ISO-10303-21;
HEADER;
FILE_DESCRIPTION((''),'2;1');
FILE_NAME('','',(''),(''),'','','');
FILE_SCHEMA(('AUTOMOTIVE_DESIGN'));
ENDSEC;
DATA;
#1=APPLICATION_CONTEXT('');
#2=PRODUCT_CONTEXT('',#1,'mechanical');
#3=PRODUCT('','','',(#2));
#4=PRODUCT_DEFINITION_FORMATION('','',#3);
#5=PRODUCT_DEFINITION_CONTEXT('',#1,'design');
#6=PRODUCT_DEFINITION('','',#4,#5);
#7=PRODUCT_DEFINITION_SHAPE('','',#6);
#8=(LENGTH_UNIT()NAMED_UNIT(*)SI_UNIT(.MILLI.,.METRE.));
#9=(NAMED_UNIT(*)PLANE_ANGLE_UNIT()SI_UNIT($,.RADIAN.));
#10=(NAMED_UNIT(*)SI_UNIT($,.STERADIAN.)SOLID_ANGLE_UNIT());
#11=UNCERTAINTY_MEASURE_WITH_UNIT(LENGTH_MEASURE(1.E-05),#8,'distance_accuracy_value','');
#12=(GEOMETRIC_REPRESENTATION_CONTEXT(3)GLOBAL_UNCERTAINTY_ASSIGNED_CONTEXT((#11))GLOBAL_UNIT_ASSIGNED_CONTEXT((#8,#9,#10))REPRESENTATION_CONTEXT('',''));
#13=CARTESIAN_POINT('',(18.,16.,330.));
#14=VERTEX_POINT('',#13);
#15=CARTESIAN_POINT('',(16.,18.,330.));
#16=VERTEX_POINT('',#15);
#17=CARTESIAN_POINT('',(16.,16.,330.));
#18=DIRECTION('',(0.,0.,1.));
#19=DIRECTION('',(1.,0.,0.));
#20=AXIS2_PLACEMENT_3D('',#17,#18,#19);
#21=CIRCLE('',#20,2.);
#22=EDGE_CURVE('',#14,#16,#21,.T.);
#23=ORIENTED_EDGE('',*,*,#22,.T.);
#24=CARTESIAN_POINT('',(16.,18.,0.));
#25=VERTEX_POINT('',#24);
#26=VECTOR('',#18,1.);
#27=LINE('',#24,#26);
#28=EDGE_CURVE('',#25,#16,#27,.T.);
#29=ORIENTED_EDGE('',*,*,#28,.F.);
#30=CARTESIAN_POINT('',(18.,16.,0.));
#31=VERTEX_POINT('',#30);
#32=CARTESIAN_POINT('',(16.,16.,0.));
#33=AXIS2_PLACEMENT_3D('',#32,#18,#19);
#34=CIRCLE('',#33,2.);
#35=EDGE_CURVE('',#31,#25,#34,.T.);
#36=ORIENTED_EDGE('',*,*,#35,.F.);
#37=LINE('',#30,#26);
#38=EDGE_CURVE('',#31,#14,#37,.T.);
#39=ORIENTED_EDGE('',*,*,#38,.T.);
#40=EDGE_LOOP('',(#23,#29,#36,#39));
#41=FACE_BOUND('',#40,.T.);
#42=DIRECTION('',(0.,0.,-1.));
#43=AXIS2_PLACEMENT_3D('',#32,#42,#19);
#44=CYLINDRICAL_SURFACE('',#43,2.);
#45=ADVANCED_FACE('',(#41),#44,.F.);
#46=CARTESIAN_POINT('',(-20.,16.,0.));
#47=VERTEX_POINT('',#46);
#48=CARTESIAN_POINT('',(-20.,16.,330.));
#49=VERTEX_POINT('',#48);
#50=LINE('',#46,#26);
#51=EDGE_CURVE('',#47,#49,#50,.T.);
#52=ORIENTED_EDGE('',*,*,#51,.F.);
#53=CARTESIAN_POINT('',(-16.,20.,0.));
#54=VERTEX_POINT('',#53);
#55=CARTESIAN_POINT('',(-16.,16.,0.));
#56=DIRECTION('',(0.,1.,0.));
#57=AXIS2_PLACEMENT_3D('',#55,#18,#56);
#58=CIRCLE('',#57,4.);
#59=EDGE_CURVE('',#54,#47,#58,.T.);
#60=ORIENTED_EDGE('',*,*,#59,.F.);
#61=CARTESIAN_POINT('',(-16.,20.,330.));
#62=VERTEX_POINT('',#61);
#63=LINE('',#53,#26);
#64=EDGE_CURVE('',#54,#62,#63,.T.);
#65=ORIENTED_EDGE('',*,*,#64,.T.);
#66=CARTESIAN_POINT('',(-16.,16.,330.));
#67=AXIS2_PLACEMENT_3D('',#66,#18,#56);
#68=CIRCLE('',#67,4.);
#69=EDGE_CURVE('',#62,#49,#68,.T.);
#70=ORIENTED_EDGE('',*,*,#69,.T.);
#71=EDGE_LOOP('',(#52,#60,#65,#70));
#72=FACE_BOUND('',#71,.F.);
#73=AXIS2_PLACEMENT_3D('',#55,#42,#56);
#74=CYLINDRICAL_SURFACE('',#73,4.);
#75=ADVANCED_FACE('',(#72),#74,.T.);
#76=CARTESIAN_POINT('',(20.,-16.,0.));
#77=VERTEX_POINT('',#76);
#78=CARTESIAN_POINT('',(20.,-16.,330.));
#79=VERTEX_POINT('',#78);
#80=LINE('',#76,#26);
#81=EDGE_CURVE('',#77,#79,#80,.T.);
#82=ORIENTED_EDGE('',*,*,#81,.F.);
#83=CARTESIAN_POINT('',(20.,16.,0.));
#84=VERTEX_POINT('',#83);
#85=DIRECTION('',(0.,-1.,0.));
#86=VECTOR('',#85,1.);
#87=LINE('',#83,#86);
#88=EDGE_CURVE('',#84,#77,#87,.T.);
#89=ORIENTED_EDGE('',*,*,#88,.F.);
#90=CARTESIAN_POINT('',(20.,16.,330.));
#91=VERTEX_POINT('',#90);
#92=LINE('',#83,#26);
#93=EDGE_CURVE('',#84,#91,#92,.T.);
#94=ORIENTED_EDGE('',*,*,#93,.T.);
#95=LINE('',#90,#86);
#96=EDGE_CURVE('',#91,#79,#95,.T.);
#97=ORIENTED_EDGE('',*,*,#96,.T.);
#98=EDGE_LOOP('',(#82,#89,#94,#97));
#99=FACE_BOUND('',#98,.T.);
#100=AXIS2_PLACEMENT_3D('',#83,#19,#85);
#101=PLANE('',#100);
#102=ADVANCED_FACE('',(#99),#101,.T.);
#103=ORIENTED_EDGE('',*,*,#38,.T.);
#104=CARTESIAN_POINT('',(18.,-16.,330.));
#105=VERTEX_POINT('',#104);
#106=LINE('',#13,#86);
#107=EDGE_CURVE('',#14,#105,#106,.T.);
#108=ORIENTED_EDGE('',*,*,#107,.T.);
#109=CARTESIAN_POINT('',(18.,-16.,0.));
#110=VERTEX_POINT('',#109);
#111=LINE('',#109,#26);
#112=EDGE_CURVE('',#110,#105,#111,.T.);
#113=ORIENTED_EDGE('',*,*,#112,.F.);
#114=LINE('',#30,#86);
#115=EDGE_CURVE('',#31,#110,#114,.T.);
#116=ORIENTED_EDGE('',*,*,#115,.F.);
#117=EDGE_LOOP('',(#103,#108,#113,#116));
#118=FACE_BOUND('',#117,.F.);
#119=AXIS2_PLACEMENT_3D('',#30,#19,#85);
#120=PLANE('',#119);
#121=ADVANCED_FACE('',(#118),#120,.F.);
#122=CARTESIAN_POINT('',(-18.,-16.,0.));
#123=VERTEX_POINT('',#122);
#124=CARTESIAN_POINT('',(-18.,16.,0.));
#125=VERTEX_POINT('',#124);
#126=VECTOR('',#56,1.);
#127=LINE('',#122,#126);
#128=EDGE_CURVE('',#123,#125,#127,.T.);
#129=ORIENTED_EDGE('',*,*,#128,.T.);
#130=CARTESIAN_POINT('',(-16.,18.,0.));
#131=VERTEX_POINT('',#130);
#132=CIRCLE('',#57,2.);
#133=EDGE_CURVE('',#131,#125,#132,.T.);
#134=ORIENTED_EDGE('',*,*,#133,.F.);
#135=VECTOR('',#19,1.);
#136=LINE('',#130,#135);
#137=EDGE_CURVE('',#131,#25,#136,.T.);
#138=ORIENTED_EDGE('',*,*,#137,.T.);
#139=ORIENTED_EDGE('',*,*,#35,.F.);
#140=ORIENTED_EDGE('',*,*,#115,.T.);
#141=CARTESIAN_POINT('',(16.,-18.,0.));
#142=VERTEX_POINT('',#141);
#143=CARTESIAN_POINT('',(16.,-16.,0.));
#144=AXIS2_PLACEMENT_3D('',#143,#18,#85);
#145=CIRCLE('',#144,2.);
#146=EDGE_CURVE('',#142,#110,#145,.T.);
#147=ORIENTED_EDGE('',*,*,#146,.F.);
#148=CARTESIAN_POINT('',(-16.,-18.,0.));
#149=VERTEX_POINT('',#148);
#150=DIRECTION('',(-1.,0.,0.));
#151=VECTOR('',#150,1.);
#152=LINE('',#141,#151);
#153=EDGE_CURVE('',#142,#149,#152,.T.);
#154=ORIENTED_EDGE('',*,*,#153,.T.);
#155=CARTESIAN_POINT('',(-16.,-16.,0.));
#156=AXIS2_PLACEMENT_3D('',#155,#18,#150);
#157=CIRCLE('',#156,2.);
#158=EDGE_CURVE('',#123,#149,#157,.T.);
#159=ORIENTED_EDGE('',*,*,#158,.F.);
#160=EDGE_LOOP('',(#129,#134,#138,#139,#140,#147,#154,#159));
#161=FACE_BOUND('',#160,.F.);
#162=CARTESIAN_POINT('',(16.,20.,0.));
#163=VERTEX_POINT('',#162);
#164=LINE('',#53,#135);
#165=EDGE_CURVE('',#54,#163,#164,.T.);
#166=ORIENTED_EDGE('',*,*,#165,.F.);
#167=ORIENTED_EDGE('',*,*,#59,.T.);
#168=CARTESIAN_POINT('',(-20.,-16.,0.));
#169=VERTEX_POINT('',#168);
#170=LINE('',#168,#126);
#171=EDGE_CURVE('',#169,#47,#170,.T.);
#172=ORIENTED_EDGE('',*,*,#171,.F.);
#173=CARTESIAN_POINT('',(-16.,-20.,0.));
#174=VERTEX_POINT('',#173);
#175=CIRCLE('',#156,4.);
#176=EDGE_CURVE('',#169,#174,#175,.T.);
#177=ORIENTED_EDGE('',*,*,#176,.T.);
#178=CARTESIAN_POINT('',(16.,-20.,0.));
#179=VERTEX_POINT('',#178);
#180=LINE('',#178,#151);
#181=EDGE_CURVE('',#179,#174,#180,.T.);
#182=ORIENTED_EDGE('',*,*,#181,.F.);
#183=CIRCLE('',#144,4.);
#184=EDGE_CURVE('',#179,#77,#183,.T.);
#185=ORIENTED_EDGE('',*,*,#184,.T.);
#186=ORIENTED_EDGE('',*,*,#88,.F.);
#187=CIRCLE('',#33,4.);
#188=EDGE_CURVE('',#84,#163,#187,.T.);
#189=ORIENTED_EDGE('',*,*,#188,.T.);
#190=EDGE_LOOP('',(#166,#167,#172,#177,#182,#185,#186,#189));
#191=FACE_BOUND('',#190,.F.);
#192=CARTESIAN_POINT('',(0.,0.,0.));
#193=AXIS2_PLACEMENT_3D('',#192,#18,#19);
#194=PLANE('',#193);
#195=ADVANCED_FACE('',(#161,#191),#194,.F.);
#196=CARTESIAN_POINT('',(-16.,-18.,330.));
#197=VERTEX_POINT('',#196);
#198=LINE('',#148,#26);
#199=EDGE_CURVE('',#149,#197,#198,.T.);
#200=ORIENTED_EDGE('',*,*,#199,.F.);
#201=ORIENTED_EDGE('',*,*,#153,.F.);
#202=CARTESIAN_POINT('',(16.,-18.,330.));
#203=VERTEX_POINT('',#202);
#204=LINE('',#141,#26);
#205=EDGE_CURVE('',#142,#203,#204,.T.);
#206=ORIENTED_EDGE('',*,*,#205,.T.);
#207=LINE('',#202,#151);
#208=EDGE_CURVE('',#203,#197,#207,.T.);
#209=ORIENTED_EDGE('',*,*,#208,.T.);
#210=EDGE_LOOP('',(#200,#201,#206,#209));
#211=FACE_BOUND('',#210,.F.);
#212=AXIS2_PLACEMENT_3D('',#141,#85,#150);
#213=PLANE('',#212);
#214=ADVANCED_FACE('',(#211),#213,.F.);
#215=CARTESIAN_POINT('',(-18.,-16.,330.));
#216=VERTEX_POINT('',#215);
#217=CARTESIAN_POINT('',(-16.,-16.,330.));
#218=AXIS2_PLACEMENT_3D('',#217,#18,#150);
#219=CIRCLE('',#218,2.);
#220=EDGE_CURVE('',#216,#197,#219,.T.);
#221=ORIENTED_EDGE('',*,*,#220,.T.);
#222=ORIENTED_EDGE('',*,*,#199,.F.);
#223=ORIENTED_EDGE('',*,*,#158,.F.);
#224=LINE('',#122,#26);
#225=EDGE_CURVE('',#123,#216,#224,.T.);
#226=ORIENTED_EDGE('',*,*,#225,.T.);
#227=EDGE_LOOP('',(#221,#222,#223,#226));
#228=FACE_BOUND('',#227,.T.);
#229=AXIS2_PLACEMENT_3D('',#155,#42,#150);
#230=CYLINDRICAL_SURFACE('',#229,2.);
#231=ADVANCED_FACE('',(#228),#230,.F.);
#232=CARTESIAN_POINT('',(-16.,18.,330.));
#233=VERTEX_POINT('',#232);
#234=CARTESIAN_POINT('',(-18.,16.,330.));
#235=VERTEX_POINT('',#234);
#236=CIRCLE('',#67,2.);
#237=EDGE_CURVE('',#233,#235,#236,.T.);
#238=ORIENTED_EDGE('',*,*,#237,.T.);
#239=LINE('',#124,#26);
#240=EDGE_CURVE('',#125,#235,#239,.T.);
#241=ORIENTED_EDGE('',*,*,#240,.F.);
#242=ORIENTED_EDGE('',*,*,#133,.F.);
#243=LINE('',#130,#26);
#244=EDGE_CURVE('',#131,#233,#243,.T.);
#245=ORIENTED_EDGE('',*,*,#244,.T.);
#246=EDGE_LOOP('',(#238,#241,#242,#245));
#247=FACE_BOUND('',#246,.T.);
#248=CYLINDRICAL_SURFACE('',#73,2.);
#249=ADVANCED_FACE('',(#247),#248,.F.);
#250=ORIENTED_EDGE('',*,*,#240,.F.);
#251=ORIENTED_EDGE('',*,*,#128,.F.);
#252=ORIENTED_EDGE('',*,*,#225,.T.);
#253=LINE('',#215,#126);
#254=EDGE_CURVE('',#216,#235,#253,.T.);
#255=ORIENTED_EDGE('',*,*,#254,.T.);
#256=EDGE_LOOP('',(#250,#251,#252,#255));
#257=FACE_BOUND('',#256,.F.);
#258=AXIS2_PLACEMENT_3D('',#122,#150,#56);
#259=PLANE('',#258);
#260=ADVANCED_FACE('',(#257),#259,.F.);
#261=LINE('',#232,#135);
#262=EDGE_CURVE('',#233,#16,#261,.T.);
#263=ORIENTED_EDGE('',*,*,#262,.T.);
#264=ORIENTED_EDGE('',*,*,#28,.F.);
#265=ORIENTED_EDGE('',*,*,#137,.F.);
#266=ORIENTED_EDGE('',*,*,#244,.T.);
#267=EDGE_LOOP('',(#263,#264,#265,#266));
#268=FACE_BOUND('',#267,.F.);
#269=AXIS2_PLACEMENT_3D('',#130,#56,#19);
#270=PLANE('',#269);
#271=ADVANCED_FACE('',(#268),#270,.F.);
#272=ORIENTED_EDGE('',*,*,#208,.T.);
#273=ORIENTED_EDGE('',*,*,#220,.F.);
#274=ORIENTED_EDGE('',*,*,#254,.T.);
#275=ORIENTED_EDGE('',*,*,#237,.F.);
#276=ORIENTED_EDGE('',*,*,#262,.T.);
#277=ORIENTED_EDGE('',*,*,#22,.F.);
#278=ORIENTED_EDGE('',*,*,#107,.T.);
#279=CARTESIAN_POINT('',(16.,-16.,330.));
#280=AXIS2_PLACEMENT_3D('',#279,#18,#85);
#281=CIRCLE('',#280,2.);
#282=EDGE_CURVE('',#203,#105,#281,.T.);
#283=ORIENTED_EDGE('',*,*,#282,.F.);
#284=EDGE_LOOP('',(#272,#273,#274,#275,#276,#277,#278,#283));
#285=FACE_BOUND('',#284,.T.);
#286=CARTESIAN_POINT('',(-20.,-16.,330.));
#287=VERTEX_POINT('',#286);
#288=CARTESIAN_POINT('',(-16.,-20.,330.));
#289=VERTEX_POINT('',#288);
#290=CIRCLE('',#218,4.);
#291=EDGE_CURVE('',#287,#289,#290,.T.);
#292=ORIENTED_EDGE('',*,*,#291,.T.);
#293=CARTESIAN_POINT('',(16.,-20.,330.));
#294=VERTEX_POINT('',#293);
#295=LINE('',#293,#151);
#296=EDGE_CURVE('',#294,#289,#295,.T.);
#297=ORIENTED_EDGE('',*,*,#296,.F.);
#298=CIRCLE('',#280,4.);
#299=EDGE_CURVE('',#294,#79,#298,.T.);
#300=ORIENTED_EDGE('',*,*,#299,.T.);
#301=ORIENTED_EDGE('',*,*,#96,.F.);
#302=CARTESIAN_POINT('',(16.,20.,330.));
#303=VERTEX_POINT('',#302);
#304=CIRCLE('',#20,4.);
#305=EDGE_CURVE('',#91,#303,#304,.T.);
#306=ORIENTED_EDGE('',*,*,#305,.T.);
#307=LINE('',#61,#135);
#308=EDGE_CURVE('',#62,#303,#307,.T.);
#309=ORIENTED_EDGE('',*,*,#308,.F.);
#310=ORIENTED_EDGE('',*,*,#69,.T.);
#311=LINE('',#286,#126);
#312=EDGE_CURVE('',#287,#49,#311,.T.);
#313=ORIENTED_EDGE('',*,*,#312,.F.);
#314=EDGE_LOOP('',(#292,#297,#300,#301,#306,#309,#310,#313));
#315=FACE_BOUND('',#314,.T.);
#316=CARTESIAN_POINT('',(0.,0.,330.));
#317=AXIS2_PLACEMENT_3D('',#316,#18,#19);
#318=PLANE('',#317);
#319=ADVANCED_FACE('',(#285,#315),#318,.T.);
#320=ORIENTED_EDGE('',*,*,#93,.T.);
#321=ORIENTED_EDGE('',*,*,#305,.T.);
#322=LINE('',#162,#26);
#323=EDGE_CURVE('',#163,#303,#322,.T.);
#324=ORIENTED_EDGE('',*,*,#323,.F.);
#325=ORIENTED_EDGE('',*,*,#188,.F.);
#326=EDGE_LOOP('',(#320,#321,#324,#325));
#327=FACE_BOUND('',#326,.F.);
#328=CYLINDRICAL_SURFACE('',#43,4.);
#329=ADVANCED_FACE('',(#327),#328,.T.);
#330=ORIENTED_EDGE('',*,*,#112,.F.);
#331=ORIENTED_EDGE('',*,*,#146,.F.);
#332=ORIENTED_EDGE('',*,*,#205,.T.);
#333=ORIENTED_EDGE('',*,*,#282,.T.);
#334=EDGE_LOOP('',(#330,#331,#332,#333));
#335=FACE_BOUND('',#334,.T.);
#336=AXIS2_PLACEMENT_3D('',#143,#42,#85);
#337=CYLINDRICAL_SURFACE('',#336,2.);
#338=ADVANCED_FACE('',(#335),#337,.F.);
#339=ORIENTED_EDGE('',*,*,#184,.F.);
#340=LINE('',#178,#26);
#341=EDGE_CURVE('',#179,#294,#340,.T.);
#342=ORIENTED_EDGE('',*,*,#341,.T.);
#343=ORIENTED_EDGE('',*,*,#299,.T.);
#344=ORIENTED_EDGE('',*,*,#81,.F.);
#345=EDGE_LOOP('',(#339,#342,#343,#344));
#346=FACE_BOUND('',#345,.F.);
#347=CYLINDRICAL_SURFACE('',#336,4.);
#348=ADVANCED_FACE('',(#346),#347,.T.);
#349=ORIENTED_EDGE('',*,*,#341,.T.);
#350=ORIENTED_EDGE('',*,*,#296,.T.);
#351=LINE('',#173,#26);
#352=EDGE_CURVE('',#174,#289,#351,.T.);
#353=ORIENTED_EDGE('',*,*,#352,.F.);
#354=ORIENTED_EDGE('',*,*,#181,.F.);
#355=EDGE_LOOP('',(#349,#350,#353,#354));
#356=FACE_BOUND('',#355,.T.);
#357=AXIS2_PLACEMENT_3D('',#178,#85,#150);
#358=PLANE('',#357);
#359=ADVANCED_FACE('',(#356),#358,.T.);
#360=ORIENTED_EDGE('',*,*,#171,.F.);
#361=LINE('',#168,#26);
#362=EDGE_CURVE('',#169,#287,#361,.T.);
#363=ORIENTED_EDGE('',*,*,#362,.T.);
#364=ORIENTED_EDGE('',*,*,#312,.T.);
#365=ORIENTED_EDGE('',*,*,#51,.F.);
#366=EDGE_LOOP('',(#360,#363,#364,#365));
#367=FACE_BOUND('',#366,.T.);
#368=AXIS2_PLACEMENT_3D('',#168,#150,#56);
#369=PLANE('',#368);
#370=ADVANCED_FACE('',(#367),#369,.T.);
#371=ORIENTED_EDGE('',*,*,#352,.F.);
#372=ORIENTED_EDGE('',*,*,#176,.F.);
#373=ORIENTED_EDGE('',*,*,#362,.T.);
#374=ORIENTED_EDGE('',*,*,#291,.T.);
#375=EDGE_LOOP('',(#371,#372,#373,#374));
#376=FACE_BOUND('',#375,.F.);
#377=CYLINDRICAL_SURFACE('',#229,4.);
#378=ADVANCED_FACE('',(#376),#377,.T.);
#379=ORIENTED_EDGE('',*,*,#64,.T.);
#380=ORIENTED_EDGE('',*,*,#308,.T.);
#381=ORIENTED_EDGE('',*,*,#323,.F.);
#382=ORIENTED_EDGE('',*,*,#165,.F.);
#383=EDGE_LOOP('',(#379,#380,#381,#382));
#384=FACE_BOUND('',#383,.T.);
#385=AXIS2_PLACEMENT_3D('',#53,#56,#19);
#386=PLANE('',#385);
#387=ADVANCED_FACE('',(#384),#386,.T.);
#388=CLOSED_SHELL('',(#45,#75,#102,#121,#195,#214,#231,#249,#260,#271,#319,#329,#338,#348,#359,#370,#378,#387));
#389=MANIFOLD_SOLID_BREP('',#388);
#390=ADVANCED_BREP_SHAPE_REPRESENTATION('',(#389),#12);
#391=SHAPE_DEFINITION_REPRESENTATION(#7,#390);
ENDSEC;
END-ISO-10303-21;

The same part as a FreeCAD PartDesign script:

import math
import FreeCAD as App
import Part
import Sketcher

V = App.Vector

doc = App.newDocument("Part")
body = doc.addObject("PartDesign::Body", "Body")

# Sketch on XY plane
sketch1 = body.newObject("Sketcher::SketchObject", "Sketch")
sketch1.AttachmentSupport = (doc.getObject("XY_Plane"), [""])
sketch1.MapMode = "FlatFace"
sketch1.addGeometry([
    Part.LineSegment(V(-20, 16, 0), V(-20, -16, 0)),  # 0
    Part.ArcOfCircle(Part.Circle(V(-16, -16, 0), V(0, 0, 1), 4), math.radians(180), math.radians(270)),  # 1
    Part.LineSegment(V(-16, -20, 0), V(16, -20, 0)),  # 2
    Part.ArcOfCircle(Part.Circle(V(16, -16, 0), V(0, 0, 1), 4), math.radians(-90), math.radians(0)),  # 3
    Part.LineSegment(V(20, -16, 0), V(20, 16, 0)),  # 4
    Part.ArcOfCircle(Part.Circle(V(16, 16, 0), V(0, 0, 1), 4), math.radians(0), math.radians(90)),  # 5
    Part.LineSegment(V(16, 20, 0), V(-16, 20, 0)),  # 6
    Part.ArcOfCircle(Part.Circle(V(-16, 16, 0), V(0, 0, 1), 4), math.radians(90), math.radians(180)),  # 7
    Part.ArcOfCircle(Part.Circle(V(-16, 16, 0), V(0, 0, 1), 2), math.radians(90), math.radians(180)),  # 8
    Part.LineSegment(V(-16, 18, 0), V(16, 18, 0)),  # 9
    Part.ArcOfCircle(Part.Circle(V(16, 16, 0), V(0, 0, 1), 2), math.radians(0), math.radians(90)),  # 10
    Part.LineSegment(V(18, 16, 0), V(18, -16, 0)),  # 11
    Part.ArcOfCircle(Part.Circle(V(16, -16, 0), V(0, 0, 1), 2), math.radians(-90), math.radians(0)),  # 12
    Part.LineSegment(V(16, -18, 0), V(-16, -18, 0)),  # 13
    Part.ArcOfCircle(Part.Circle(V(-16, -16, 0), V(0, 0, 1), 2), math.radians(180), math.radians(270)),  # 14
    Part.LineSegment(V(-18, -16, 0), V(-18, 16, 0)),  # 15
], False)
sketch1.addConstraint([
    Sketcher.Constraint("Tangent", 0, 2, 1, 1),
    Sketcher.Constraint("Tangent", 1, 2, 2, 1),
    Sketcher.Constraint("Tangent", 2, 2, 3, 1),
    Sketcher.Constraint("Tangent", 3, 2, 4, 1),
    Sketcher.Constraint("Tangent", 4, 2, 5, 1),
    Sketcher.Constraint("Tangent", 5, 2, 6, 1),
    Sketcher.Constraint("Tangent", 6, 2, 7, 1),
    Sketcher.Constraint("Tangent", 7, 2, 0, 1),
    Sketcher.Constraint("Tangent", 8, 1, 9, 1),
    Sketcher.Constraint("Tangent", 9, 2, 10, 2),
    Sketcher.Constraint("Tangent", 10, 1, 11, 1),
    Sketcher.Constraint("Tangent", 11, 2, 12, 2),
    Sketcher.Constraint("Tangent", 12, 1, 13, 1),
    Sketcher.Constraint("Tangent", 13, 2, 14, 2),
    Sketcher.Constraint("Tangent", 14, 1, 15, 1),
    Sketcher.Constraint("Tangent", 15, 2, 8, 2),
    Sketcher.Constraint("Vertical", 0),
    Sketcher.Constraint("Horizontal", 2),
    Sketcher.Constraint("Vertical", 4),
    Sketcher.Constraint("Horizontal", 6),
    Sketcher.Constraint("Horizontal", 9),
    Sketcher.Constraint("Vertical", 11),
    Sketcher.Constraint("Horizontal", 13),
    Sketcher.Constraint("Vertical", 15),
    Sketcher.Constraint("Coincident", 8, 3, 7, 3),
    Sketcher.Constraint("Coincident", 10, 3, 5, 3),
    Sketcher.Constraint("Coincident", 12, 3, 3, 3),
    Sketcher.Constraint("Equal", 1, 3),
    Sketcher.Constraint("Equal", 3, 5),
    Sketcher.Constraint("Equal", 5, 7),
    Sketcher.Constraint("Equal", 12, 14),
    Sketcher.Constraint("Symmetric", 1, 3, 5, 3, -1, 1),
    Sketcher.Constraint("Equal", 13, 0),
    Sketcher.Constraint("Radius", 1, 4.0),
    Sketcher.Constraint("Radius", 8, 2.0),
    Sketcher.Constraint("DistanceX", 0, 2, -1, 1, 20.0),
])
pad1 = body.newObject("PartDesign::Pad", "Pad")
pad1.Profile = sketch1
pad1.Length = 330

doc.recompute()
